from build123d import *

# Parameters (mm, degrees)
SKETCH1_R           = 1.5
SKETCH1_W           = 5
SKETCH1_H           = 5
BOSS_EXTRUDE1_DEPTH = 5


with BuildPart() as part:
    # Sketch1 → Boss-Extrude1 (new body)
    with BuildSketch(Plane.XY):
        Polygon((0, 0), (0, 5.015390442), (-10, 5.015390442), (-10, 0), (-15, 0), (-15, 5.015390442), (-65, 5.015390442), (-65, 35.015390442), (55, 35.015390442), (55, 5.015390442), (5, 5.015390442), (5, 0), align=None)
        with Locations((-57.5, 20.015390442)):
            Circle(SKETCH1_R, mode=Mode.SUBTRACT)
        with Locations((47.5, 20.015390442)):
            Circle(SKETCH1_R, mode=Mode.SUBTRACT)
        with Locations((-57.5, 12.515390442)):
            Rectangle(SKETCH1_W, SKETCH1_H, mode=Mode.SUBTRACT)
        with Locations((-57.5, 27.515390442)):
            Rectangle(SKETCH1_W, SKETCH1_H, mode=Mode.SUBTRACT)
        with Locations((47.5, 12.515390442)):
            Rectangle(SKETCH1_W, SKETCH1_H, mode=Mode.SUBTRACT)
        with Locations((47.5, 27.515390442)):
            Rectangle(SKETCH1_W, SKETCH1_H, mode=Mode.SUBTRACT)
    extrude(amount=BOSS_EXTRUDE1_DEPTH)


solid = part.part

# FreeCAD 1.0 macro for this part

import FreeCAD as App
import Part
import Sketcher

V = App.Vector


def add_polygon(sketch, points):
    """Adds a closed chain of lines whose ends are joined by coincident constraints."""
    first, n = sketch.GeometryCount, len(points)
    for a, b in zip(points, points[1:] + points[:1]):
        sketch.addGeometry(Part.LineSegment(App.Vector(*a, 0), App.Vector(*b, 0)), False)
    for i in range(n):
        sketch.addConstraint(Sketcher.Constraint("Coincident", first + i, 2, first + (i + 1) % n, 1))

doc = App.newDocument("Part")
params = doc.addObject("Spreadsheet::Sheet", "Params")
for row, (alias, value) in enumerate([
    ("sketch1_diameter", "3 mm"),
    ("sketch1_width", "5 mm"),
    ("sketch1_width2", "50 mm"),
    ("sketch1_width3", "120 mm"),
    ("sketch1_height", "30 mm"),
    ("pad1_length", "5 mm"),
], start=1):
    params.set(f"A{row}", alias)
    params.set(f"B{row}", "=" + value)
    params.setAlias(f"B{row}", alias)

body = doc.addObject("PartDesign::Body", "Body")

sketch1 = doc.addObject("Sketcher::SketchObject", "Sketch")
body.addObject(sketch1)
sketch1.AttachmentSupport = (doc.XY_Plane, [""])
sketch1.MapMode = "FlatFace"
add_polygon(sketch1, [(0, 5.01539), (0, 0), (5, 0), (5, 5.01539), (55, 5.01539), (55, 35.01539), (-65, 35.01539), (-65, 5.01539), (-15, 5.01539), (-15, 0), (-10, 0), (-10, 5.01539)])
add_polygon(sketch1, [(45, 10.01539), (45, 15.01539), (50, 15.01539), (50, 10.01539)])
add_polygon(sketch1, [(-60, 10.01539), (-60, 15.01539), (-55, 15.01539), (-55, 10.01539)])
sketch1.addGeometry(Part.Circle(V(47.5, 20.01539, 0), V(0, 0, 1), 1.5), False)
add_polygon(sketch1, [(45, 25.01539), (45, 30.01539), (50, 30.01539), (50, 25.01539)])
sketch1.addGeometry(Part.Circle(V(-57.5, 20.01539, 0), V(0, 0, 1), 1.5), False)
add_polygon(sketch1, [(-60, 25.01539), (-60, 30.01539), (-55, 30.01539), (-55, 25.01539)])
sketch1.addConstraint(Sketcher.Constraint("Vertical", 0))
sketch1.addConstraint(Sketcher.Constraint("Horizontal", 1))
sketch1.addConstraint(Sketcher.Constraint("Vertical", 2))
sketch1.addConstraint(Sketcher.Constraint("Horizontal", 3))
sketch1.addConstraint(Sketcher.Constraint("Vertical", 4))
sketch1.addConstraint(Sketcher.Constraint("Horizontal", 5))
sketch1.addConstraint(Sketcher.Constraint("Vertical", 6))
sketch1.addConstraint(Sketcher.Constraint("Horizontal", 7))
sketch1.addConstraint(Sketcher.Constraint("Vertical", 8))
sketch1.addConstraint(Sketcher.Constraint("Horizontal", 9))
sketch1.addConstraint(Sketcher.Constraint("Vertical", 10))
sketch1.addConstraint(Sketcher.Constraint("Horizontal", 11))
sketch1.addConstraint(Sketcher.Constraint("Vertical", 12))
sketch1.addConstraint(Sketcher.Constraint("Horizontal", 13))
sketch1.addConstraint(Sketcher.Constraint("Vertical", 14))
sketch1.addConstraint(Sketcher.Constraint("Horizontal", 15))
sketch1.addConstraint(Sketcher.Constraint("Vertical", 16))
sketch1.addConstraint(Sketcher.Constraint("Horizontal", 17))
sketch1.addConstraint(Sketcher.Constraint("Vertical", 18))
sketch1.addConstraint(Sketcher.Constraint("Horizontal", 19))
sketch1.addConstraint(Sketcher.Constraint("Vertical", 21))
sketch1.addConstraint(Sketcher.Constraint("Horizontal", 22))
sketch1.addConstraint(Sketcher.Constraint("Vertical", 23))
sketch1.addConstraint(Sketcher.Constraint("Horizontal", 24))
sketch1.addConstraint(Sketcher.Constraint("Vertical", 26))
sketch1.addConstraint(Sketcher.Constraint("Horizontal", 27))
sketch1.addConstraint(Sketcher.Constraint("Vertical", 28))
sketch1.addConstraint(Sketcher.Constraint("Horizontal", 29))
sketch1.addConstraint(Sketcher.Constraint("Coincident", 0, 2, -1, 1))
sketch1.addConstraint(Sketcher.Constraint("Equal", 20, 25))
sketch1.addConstraint(Sketcher.Constraint("PointOnObject", 8, 2, -1))
sketch1.addConstraint(Sketcher.Constraint("Horizontal", 20, 3, 25, 3))
sketch1.addConstraint(Sketcher.Constraint("Horizontal", 3, 2, 6, 2))
sketch1.addConstraint(Sketcher.Constraint("Horizontal", 7, 2, 10, 2))
sketch1.addConstraint(Sketcher.Constraint("Horizontal", 13, 2, 16, 2))
sketch1.addConstraint(Sketcher.Constraint("Horizontal", 15, 2, 18, 2))
sketch1.addConstraint(Sketcher.Constraint("Horizontal", 22, 2, 26, 2))
sketch1.addConstraint(Sketcher.Constraint("Horizontal", 24, 2, 28, 2))
sketch1.addConstraint(Sketcher.Constraint("Vertical", 15, 2, 21, 2))
sketch1.addConstraint(Sketcher.Constraint("Vertical", 14, 2, 22, 2))
sketch1.addConstraint(Sketcher.Constraint("Vertical", 19, 2, 26, 2))
sketch1.addConstraint(Sketcher.Constraint("Vertical", 18, 2, 27, 2))
sketch1.addConstraint(Sketcher.Constraint("Equal", 3, 7))
sketch1.addConstraint(Sketcher.Constraint("Equal", 1, 9))
sketch1.addConstraint(Sketcher.Constraint("Equal", 9, 13))
sketch1.addConstraint(Sketcher.Constraint("Equal", 15, 17))
sketch1.addConstraint(Sketcher.Constraint("Equal", 29, 12))
sketch1.addConstraint(Sketcher.Constraint("Equal", 18, 21))
sketch1.addConstraint(Sketcher.Constraint("Diameter", 20, 3.0))
sketch1.addConstraint(Sketcher.Constraint("DistanceX", 1, 1, 1, 2, 5.0))
sketch1.addConstraint(Sketcher.Constraint("DistanceX", 3, 1, 3, 2, 50.0))
sketch1.addConstraint(Sketcher.Constraint("DistanceX", 5, 2, 5, 1, 120.0))
sketch1.addConstraint(Sketcher.Constraint("DistanceY", 4, 1, 4, 2, 30.0))
sketch1.addConstraint(Sketcher.Constraint("DistanceX", -1, 1, 12, 2, 45.0))
sketch1.addConstraint(Sketcher.Constraint("DistanceX", 16, 2, -1, 1, 60.0))
sketch1.addConstraint(Sketcher.Constraint("DistanceX", 25, 3, 20, 3, 105.0))
sketch1.addConstraint(Sketcher.Constraint("DistanceY", 2, 2, 20, 3, 15.0))
sketch1.addConstraint(Sketcher.Constraint("DistanceY", 12, 2, 20, 3, 5.0))
sketch1.addConstraint(Sketcher.Constraint("DistanceY", 20, 3, 21, 2, 10.0))
sketch1.addConstraint(Sketcher.Constraint("DistanceX", -1, 1, 20, 3, 47.5))
sketch1.addConstraint(Sketcher.Constraint("DistanceY", 0, 2, 0, 1, 5.01539))
sketch1.setExpression("Constraints[76]", "Params.sketch1_diameter")
sketch1.setExpression("Constraints[77]", "Params.sketch1_width")
sketch1.setExpression("Constraints[78]", "Params.sketch1_width2")
sketch1.setExpression("Constraints[79]", "Params.sketch1_width3")
sketch1.setExpression("Constraints[80]", "Params.sketch1_height")
pad1 = doc.addObject("PartDesign::Pad", "Pad")
body.addObject(pad1)
pad1.Profile = sketch1
pad1.setExpression("Length", "Params.pad1_length")

doc.recompute()
